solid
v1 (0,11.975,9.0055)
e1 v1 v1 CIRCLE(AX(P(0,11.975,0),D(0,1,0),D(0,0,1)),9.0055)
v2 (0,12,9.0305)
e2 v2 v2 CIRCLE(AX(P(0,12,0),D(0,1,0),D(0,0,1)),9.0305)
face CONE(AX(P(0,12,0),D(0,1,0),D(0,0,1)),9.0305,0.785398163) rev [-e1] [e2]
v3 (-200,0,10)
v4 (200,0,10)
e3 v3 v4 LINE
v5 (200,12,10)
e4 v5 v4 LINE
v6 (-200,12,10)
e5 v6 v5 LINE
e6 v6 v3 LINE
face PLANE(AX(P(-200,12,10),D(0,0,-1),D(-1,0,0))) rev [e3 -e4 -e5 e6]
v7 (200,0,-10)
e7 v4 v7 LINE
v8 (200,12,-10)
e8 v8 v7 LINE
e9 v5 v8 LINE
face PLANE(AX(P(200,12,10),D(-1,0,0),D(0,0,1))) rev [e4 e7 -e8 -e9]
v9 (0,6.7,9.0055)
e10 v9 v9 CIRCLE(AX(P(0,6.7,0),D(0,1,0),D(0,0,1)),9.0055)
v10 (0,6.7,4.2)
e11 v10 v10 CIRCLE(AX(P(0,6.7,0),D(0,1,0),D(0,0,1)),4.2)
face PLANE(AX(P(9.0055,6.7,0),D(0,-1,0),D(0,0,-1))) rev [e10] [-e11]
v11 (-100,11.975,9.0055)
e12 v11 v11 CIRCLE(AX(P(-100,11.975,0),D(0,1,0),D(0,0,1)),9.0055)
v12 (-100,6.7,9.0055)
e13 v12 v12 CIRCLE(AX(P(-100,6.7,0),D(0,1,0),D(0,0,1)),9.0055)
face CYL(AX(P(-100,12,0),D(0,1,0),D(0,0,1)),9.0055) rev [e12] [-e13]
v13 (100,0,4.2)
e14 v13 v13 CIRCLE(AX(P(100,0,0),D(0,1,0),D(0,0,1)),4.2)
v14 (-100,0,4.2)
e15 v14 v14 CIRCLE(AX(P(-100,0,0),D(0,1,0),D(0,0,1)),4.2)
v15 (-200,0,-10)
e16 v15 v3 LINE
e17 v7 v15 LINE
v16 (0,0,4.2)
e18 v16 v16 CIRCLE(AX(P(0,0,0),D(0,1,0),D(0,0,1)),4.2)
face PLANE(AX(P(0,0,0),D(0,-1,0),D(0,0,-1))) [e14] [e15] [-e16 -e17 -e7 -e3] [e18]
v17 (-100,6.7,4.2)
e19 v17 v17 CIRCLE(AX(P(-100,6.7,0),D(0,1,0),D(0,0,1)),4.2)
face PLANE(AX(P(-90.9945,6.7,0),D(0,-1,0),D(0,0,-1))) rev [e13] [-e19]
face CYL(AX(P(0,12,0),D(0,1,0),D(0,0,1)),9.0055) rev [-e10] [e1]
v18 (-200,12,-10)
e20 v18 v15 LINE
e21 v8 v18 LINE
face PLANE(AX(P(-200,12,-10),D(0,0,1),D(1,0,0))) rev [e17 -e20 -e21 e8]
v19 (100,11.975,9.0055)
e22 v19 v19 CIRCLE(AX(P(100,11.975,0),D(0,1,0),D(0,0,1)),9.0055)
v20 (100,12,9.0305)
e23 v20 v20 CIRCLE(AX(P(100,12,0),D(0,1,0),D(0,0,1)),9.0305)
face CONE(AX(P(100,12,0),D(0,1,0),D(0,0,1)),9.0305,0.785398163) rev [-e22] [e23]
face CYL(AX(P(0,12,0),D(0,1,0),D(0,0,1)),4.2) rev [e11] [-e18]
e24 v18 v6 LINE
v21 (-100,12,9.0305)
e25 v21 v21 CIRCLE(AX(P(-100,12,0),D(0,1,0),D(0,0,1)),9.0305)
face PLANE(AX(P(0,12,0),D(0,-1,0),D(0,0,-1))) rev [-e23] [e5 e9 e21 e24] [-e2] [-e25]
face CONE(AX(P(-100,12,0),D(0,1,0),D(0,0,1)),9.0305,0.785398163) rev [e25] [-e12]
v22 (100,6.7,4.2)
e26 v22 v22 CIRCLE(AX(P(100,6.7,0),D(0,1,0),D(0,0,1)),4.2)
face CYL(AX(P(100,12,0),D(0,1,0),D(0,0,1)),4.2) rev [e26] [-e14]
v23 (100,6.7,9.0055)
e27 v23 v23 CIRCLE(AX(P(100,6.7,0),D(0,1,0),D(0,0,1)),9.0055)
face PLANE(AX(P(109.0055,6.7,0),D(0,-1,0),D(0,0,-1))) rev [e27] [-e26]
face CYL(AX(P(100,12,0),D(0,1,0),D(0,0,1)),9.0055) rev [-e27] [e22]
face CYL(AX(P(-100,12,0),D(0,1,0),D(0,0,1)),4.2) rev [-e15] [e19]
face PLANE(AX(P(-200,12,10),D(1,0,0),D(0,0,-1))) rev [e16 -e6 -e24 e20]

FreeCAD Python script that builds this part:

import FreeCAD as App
import Part
import Sketcher
Q = App.Units.Quantity

doc = App.newDocument("Part")
params = doc.addObject("Spreadsheet::Sheet", "Params")
for row, (alias, value) in enumerate([
    ("sketch1_width", "400 mm"),
    ("sketch1_height", "20 mm"),
    ("pad1_length", "12 mm"),
    ("sketch2_width", "12 mm"),
    ("sketch2_width2", "6.7 mm"),
    ("sketch2_height", "4.2 mm"),
    ("groove_angle", "360 deg"),
    ("linearpattern_pitch", "100 mm"),
    ("linearpattern2_pitch", "100 mm"),
], start=1):
    params.set(f"A{row}", alias)
    params.set(f"B{row}", "=" + value)
    params.setAlias(f"B{row}", alias)

body = doc.addObject("PartDesign::Body", "Body")

sketch1 = body.newObject("Sketcher::SketchObject", "Sketch")
sketch1.AttachmentSupport = (doc.getObject("XZ_Plane"), [""])
sketch1.MapMode = "FlatFace"
sketch1.addGeometry(Part.LineSegment(App.Vector(-200, -10, 0), App.Vector(-200, 10, 0)), False)
sketch1.addGeometry(Part.LineSegment(App.Vector(-200, 10, 0), App.Vector(200, 10, 0)), False)
sketch1.addGeometry(Part.LineSegment(App.Vector(200, 10, 0), App.Vector(200, -10, 0)), False)
sketch1.addGeometry(Part.LineSegment(App.Vector(200, -10, 0), App.Vector(-200, -10, 0)), False)
sketch1.addConstraint(Sketcher.Constraint("Coincident", 0, 2, 1, 1))
sketch1.addConstraint(Sketcher.Constraint("Coincident", 1, 2, 2, 1))
sketch1.addConstraint(Sketcher.Constraint("Coincident", 2, 2, 3, 1))
sketch1.addConstraint(Sketcher.Constraint("Coincident", 3, 2, 0, 1))
sketch1.addConstraint(Sketcher.Constraint("Vertical", 0))
sketch1.addConstraint(Sketcher.Constraint("Horizontal", 1))
sketch1.addConstraint(Sketcher.Constraint("Vertical", 2))
sketch1.addConstraint(Sketcher.Constraint("Horizontal", 3))
sketch1.addConstraint(Sketcher.Constraint("Symmetric", 0, 2, 2, 2, -1, 1))
sketch1.addConstraint(Sketcher.Constraint("DistanceX", 1, 1, 1, 2, 400.0))
sketch1.addConstraint(Sketcher.Constraint("DistanceY", 0, 1, 0, 2, 20.0))
sketch1.setExpression("Constraints[9]", "Params.sketch1_width")
sketch1.setExpression("Constraints[10]", "Params.sketch1_height")
pad1 = body.newObject("PartDesign::Pad", "Pad")
pad1.Profile = sketch1
pad1.setExpression("Length", "Params.pad1_length")
pad1.Reversed = True

sketch2 = body.newObject("Sketcher::SketchObject", "Sketch001")
sketch2.AttachmentSupport = (doc.getObject("YZ_Plane"), [""])
sketch2.MapMode = "FlatFace"
sketch2.addGeometry(Part.LineSegment(App.Vector(0, 0, 0), App.Vector(12, 0, 0)), False)
sketch2.addGeometry(Part.LineSegment(App.Vector(12, 0, 0), App.Vector(12, 9.0305, 0)), False)
sketch2.addGeometry(Part.LineSegment(App.Vector(12, 9.0305, 0), App.Vector(11.975, 9.0055, 0)), False)
sketch2.addGeometry(Part.LineSegment(App.Vector(11.975, 9.0055, 0), App.Vector(6.7, 9.0055, 0)), False)
sketch2.addGeometry(Part.LineSegment(App.Vector(6.7, 9.0055, 0), App.Vector(6.7, 4.2, 0)), False)
sketch2.addGeometry(Part.LineSegment(App.Vector(6.7, 4.2, 0), App.Vector(0, 4.2, 0)), False)
sketch2.addGeometry(Part.LineSegment(App.Vector(0, 4.2, 0), App.Vector(0, 0, 0)), False)
sketch2.addConstraint(Sketcher.Constraint("Coincident", 0, 2, 1, 1))
sketch2.addConstraint(Sketcher.Constraint("Coincident", 1, 2, 2, 1))
sketch2.addConstraint(Sketcher.Constraint("Coincident", 2, 2, 3, 1))
sketch2.addConstraint(Sketcher.Constraint("Coincident", 3, 2, 4, 1))
sketch2.addConstraint(Sketcher.Constraint("Coincident", 4, 2, 5, 1))
sketch2.addConstraint(Sketcher.Constraint("Coincident", 5, 2, 6, 1))
sketch2.addConstraint(Sketcher.Constraint("Coincident", 6, 2, 0, 1))
sketch2.addConstraint(Sketcher.Constraint("Horizontal", 0))
sketch2.addConstraint(Sketcher.Constraint("Vertical", 1))
sketch2.addConstraint(Sketcher.Constraint("Horizontal", 3))
sketch2.addConstraint(Sketcher.Constraint("Vertical", 4))
sketch2.addConstraint(Sketcher.Constraint("Horizontal", 5))
sketch2.addConstraint(Sketcher.Constraint("Vertical", 6))
sketch2.addConstraint(Sketcher.Constraint("Coincident", 6, 2, -1, 1))
sketch2.addConstraint(Sketcher.Constraint("DistanceX", 0, 1, 0, 2, 12.0))
sketch2.addConstraint(Sketcher.Constraint("Angle", 2, Q("-135 deg")))
sketch2.addConstraint(Sketcher.Constraint("DistanceX", 5, 2, 5, 1, 6.7))
sketch2.addConstraint(Sketcher.Constraint("DistanceY", 6, 2, 6, 1, 4.2))
sketch2.addConstraint(Sketcher.Constraint("DistanceX", 3, 2, 3, 1, 5.275))
sketch2.addConstraint(Sketcher.Constraint("DistanceY", 1, 1, 1, 2, 9.0305))
sketch2.setExpression("Constraints[14]", "Params.sketch2_width")
sketch2.setExpression("Constraints[16]", "Params.sketch2_width2")
sketch2.setExpression("Constraints[17]", "Params.sketch2_height")
groove = body.newObject("PartDesign::Groove", "Groove")
groove.Profile = sketch2
groove.ReferenceAxis = (sketch2, ["H_Axis"])
groove.setExpression("Angle", "Params.groove_angle")
doc.recompute()

linearpattern = body.newObject("PartDesign::LinearPattern", "LinearPattern")
linearpattern.Originals = [groove]
linearpattern.Direction = (doc.getObject("X_Axis"), [""])
linearpattern.Mode = "offset"
linearpattern.setExpression("Offset", "Params.linearpattern_pitch")
linearpattern.Occurrences = 2
body.Tip = linearpattern
doc.recompute()

linearpattern2 = body.newObject("PartDesign::LinearPattern", "LinearPattern001")
linearpattern2.Originals = [groove]
linearpattern2.Direction = (doc.getObject("X_Axis"), [""])
linearpattern2.Mode = "offset"
linearpattern2.setExpression("Offset", "Params.linearpattern2_pitch")
linearpattern2.Occurrences = 2
linearpattern2.Reversed = True
body.Tip = linearpattern2

doc.recompute()
